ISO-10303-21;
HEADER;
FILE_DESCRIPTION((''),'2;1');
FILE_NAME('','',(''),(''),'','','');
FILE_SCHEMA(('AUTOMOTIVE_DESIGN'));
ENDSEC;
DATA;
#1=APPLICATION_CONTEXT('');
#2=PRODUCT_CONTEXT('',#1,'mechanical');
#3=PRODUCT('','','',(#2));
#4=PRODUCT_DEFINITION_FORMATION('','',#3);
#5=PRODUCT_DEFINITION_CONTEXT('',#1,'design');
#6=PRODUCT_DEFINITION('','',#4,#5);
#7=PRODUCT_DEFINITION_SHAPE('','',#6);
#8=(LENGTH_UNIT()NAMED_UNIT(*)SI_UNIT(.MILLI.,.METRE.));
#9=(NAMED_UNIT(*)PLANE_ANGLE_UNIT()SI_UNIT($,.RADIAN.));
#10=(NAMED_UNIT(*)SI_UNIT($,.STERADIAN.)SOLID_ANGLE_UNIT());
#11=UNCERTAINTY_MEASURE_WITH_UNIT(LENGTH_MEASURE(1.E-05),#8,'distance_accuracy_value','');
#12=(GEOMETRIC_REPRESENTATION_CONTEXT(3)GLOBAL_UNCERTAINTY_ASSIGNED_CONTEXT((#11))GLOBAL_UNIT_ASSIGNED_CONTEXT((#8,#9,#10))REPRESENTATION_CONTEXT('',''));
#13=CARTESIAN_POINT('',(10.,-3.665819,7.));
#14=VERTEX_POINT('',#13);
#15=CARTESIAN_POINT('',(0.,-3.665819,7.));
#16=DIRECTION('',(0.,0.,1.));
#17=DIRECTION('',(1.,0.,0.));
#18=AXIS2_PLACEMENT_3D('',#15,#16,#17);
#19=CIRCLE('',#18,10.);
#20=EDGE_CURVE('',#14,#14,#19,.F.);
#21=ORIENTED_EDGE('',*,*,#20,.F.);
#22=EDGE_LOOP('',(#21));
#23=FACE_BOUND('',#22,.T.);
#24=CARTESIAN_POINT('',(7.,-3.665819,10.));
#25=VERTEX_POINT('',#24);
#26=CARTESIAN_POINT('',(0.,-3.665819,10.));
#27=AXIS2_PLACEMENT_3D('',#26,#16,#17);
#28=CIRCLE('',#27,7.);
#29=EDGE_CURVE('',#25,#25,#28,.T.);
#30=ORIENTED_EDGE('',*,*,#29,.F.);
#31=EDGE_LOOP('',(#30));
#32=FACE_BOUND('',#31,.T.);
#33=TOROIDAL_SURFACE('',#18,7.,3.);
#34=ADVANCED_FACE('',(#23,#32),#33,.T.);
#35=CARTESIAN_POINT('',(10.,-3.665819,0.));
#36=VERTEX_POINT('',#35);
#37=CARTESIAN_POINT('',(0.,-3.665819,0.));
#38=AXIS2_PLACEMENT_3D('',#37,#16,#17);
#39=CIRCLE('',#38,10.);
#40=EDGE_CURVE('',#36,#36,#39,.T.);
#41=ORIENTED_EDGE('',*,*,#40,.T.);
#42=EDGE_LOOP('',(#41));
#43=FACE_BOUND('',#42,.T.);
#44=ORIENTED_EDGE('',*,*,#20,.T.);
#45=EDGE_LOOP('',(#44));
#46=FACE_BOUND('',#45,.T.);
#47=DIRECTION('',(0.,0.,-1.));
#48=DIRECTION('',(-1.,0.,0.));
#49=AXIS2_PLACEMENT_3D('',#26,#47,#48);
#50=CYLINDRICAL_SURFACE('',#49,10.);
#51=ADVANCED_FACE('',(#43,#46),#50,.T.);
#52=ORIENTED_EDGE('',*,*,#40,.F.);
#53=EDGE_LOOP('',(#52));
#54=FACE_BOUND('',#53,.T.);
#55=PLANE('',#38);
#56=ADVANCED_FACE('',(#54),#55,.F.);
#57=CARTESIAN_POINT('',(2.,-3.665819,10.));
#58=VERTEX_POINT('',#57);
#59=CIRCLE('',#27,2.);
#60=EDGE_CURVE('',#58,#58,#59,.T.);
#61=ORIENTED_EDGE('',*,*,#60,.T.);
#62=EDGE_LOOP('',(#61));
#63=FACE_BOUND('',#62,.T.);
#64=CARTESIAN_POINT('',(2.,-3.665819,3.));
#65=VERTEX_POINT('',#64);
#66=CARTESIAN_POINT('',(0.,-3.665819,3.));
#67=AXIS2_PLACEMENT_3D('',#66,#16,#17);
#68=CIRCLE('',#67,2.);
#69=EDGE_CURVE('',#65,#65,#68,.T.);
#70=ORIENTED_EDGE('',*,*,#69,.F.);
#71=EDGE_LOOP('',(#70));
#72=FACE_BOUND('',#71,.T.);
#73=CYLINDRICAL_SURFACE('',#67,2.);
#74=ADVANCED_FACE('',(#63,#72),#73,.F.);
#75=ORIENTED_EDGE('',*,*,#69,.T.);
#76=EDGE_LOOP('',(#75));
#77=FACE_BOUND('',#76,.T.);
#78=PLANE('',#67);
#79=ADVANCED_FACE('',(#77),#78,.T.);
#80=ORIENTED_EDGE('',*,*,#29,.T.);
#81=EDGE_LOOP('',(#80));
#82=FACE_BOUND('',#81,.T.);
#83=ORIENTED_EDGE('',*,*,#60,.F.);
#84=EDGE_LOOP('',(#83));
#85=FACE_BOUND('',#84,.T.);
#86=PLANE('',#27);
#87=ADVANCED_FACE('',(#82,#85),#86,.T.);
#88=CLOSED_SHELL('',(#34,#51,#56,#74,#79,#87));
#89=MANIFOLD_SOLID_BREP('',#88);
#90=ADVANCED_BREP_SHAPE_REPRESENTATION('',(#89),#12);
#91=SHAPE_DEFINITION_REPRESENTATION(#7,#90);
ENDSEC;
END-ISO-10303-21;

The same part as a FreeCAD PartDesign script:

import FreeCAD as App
import Part
import Sketcher

V = App.Vector
Q = App.Units.Quantity


def edges_at(feature, points):
    """Names of the edges that pass closest to the given points."""
    edges = feature.Shape.Edges
    near = lambda p: min(range(len(edges)), key=lambda i: edges[i].distToShape(Part.Vertex(*p))[0])
    return sorted({f"Edge{near(p) + 1}" for p in points})

doc = App.newDocument("Part")
body = doc.addObject("PartDesign::Body", "Body")

# Sketch on XY plane
sketch1 = doc.addObject("Sketcher::SketchObject", "Sketch")
body.addObject(sketch1)
sketch1.AttachmentSupport = (doc.XY_Plane, [""])
sketch1.MapMode = "FlatFace"
sketch1.addGeometry(Part.Circle(V(0, -4, 0), V(0, 0, 1), 10), False)
sketch1.addConstraint([
    Sketcher.Constraint("PointOnObject", 0, 3, -2),
    Sketcher.Constraint("Diameter", 0, Q("20 mm")),
    Sketcher.Constraint("DistanceY", 0, 3, -1, 1, Q("3.665819 mm")),
])
pad1 = doc.addObject("PartDesign::Pad", "Pad")
body.addObject(pad1)
pad1.Profile = sketch1
pad1.Length = 10
doc.recompute()

fillet = doc.addObject("PartDesign::Fillet", "Fillet")
body.addObject(fillet)
fillet.Base = (pad1, edges_at(pad1, [(-10, -3.666, 10)]))
fillet.Radius = 3

# Sketch on XY plane
sketch2 = doc.addObject("Sketcher::SketchObject", "Sketch001")
body.addObject(sketch2)
sketch2.AttachmentSupport = (doc.XY_Plane, [""])
sketch2.MapMode = "FlatFace"
sketch2.AttachmentOffset = App.Placement(V(0, 0, 10), App.Rotation())
sketch2.addGeometry(Part.Circle(V(0, -3.7, 0), V(0, 0, 1), 2), False)
sketch2.addConstraint([
    Sketcher.Constraint("PointOnObject", 0, 3, -2),
    Sketcher.Constraint("Diameter", 0, Q("4 mm")),
    Sketcher.Constraint("DistanceY", 0, 3, -1, 1, Q("3.665819 mm")),
])
pocket1 = doc.addObject("PartDesign::Pocket", "Pocket")
body.addObject(pocket1)
pocket1.Profile = sketch2
pocket1.Length = 7

doc.recompute()
